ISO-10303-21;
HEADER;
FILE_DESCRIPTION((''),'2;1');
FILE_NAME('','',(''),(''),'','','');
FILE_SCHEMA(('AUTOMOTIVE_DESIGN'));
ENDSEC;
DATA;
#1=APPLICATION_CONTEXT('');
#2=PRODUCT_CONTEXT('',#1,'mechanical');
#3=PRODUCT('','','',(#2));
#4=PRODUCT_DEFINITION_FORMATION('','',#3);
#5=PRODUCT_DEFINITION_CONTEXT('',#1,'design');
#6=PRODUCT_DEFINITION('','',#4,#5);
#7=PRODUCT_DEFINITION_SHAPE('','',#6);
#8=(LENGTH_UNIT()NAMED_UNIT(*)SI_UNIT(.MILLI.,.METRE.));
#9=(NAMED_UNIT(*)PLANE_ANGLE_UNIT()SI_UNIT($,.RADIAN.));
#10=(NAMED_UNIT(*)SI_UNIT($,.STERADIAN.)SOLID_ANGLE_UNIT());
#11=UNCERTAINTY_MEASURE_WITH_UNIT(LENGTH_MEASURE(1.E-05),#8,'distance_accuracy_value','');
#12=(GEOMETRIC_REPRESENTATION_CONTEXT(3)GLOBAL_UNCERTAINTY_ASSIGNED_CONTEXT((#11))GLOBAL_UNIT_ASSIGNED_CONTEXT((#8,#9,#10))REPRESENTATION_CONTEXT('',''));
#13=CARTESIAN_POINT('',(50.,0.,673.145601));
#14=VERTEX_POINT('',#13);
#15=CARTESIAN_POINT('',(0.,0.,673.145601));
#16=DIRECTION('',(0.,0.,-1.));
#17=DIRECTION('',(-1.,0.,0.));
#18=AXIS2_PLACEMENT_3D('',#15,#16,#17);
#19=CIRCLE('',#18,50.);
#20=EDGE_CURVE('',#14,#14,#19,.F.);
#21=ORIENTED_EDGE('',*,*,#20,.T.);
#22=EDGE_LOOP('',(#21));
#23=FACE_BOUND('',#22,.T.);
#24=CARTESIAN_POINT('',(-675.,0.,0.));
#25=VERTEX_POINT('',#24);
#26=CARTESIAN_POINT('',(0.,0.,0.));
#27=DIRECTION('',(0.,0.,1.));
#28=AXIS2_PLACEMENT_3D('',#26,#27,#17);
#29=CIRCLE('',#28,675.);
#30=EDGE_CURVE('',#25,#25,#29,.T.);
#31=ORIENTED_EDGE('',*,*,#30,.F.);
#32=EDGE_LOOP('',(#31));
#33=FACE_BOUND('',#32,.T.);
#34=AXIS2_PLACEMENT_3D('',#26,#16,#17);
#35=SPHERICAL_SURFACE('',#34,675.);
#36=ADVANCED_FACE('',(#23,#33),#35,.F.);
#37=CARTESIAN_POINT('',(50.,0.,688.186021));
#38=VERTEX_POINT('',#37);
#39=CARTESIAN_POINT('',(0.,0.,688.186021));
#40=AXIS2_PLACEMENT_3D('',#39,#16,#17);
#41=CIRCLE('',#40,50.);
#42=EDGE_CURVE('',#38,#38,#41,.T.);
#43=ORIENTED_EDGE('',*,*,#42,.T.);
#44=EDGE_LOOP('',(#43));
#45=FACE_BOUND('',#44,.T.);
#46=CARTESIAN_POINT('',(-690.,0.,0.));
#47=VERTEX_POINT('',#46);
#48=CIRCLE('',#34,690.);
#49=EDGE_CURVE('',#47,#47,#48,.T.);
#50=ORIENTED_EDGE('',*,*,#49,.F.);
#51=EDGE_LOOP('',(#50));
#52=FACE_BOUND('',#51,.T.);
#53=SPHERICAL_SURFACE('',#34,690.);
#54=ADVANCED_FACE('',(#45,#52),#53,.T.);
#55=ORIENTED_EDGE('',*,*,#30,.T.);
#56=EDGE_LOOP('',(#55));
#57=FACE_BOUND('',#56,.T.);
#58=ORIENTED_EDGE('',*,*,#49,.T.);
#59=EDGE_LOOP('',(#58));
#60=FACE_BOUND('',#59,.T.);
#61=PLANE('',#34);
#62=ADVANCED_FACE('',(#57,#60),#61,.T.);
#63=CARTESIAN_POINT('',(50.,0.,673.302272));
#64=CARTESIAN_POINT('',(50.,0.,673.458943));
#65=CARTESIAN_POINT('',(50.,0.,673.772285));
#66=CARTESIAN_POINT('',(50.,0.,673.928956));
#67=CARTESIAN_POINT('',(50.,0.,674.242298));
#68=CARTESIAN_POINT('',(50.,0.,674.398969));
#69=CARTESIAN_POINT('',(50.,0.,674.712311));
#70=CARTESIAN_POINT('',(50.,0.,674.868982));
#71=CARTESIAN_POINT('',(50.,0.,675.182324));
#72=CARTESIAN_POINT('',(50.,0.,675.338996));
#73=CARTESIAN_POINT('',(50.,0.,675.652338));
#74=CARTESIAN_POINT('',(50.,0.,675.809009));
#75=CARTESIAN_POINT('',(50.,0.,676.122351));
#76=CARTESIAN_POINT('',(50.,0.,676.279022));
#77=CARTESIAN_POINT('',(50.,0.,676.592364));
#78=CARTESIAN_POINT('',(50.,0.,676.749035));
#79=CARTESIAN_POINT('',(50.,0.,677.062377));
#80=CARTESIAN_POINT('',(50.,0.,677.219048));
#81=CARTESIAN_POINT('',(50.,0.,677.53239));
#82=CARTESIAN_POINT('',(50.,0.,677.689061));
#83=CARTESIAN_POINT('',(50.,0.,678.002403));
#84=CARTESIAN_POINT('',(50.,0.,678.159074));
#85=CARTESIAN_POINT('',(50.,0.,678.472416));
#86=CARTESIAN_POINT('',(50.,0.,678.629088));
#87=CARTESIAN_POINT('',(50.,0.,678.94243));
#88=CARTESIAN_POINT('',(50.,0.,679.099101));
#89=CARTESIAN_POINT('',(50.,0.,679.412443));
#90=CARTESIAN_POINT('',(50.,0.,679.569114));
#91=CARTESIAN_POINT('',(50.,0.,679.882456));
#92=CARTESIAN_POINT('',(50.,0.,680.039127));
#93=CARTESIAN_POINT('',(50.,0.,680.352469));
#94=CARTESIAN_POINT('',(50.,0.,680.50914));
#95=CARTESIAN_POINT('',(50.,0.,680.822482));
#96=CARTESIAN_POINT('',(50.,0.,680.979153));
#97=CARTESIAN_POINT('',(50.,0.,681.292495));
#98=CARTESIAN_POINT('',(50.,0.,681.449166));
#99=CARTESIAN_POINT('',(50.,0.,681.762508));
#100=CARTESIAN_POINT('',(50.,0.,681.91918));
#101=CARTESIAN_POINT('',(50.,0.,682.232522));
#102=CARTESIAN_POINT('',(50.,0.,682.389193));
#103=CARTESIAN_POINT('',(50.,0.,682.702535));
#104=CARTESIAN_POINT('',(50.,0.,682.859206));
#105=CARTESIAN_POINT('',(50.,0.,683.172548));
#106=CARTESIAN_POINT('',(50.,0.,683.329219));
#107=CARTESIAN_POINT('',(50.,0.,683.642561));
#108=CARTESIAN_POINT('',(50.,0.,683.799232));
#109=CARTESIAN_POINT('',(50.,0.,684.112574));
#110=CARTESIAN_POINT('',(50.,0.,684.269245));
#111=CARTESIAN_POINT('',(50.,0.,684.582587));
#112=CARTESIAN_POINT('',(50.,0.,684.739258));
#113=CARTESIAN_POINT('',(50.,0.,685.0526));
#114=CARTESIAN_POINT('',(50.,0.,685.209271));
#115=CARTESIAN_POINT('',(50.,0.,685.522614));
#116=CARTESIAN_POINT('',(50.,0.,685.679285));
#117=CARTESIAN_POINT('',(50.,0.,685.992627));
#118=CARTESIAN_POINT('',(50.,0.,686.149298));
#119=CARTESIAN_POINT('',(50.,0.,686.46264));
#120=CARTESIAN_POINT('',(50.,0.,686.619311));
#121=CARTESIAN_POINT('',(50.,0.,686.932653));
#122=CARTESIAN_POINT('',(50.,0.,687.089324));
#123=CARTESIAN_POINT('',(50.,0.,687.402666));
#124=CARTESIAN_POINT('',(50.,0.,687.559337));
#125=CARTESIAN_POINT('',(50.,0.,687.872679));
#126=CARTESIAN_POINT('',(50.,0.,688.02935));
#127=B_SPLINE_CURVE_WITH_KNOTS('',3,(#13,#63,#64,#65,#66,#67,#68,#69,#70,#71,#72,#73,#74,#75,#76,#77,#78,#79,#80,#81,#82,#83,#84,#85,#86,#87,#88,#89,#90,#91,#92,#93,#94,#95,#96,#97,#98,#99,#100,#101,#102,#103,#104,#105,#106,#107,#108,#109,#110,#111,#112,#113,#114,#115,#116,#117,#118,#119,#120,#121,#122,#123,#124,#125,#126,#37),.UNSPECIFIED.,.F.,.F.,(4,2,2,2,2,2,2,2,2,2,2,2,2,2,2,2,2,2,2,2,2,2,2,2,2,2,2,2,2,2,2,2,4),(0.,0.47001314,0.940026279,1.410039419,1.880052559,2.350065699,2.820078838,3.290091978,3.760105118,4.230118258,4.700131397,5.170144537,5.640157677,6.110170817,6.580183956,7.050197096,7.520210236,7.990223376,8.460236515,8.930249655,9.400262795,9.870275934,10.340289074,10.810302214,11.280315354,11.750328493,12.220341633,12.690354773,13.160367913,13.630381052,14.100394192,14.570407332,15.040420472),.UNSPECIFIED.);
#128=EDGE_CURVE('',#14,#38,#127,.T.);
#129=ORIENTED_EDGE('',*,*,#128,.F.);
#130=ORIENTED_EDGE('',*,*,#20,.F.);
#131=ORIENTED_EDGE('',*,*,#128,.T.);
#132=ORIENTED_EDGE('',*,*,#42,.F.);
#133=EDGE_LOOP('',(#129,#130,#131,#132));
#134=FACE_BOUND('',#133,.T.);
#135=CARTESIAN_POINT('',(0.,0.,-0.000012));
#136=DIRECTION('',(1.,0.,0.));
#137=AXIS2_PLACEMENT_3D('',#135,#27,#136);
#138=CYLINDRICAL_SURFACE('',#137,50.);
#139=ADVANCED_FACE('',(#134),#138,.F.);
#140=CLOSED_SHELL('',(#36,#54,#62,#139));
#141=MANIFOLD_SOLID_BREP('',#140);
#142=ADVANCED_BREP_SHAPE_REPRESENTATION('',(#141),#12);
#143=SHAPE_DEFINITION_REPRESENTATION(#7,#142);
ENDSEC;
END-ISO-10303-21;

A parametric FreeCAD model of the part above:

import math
import FreeCAD as App
import Part
import Sketcher

doc = App.newDocument("Part")
body = doc.addObject("PartDesign::Body", "Body")

sketch1 = doc.addObject("Sketcher::SketchObject", "Sketch")
body.addObject(sketch1)
sketch1.AttachmentSupport = (doc.XY_Plane, [""])
sketch1.MapMode = "FlatFace"
sketch1.addGeometry([
    Part.LineSegment(App.Vector(0, 690, 0), App.Vector(0, 675, 0)),
    Part.ArcOfCircle(Part.Circle(App.Vector(0, 0, 0), App.Vector(0, 0, 1), 675), math.radians(-90), math.radians(90)),
    Part.LineSegment(App.Vector(0, -675, 0), App.Vector(0, -690, 0)),
    Part.ArcOfCircle(Part.Circle(App.Vector(0, 0, 0), App.Vector(0, 0, 1), 690), math.radians(-90), math.radians(90)),
], False)
sketch1.addConstraint([
    Sketcher.Constraint("Coincident", 0, 2, 1, 2),
    Sketcher.Constraint("Coincident", 1, 1, 2, 1),
    Sketcher.Constraint("Coincident", 2, 2, 3, 1),
    Sketcher.Constraint("Coincident", 3, 2, 0, 1),
    Sketcher.Constraint("Vertical", 0),
    Sketcher.Constraint("Vertical", 2),
    Sketcher.Constraint("Coincident", 1, 3, -1, 1),
    Sketcher.Constraint("Coincident", 3, 3, -1, 1),
    Sketcher.Constraint("PointOnObject", 0, 2, -2),
    Sketcher.Constraint("PointOnObject", 2, 2, -2),
    Sketcher.Constraint("Radius", 1, 675.0),
    Sketcher.Constraint("Radius", 3, 690.0),
])
revolution = doc.addObject("PartDesign::Revolution", "Revolution")
body.addObject(revolution)
revolution.Profile = sketch1
revolution.ReferenceAxis = (sketch1, ["V_Axis"])
revolution.Angle = 180
revolution.Reversed = True

sketch2 = doc.addObject("Sketcher::SketchObject", "Sketch001")
body.addObject(sketch2)
sketch2.AttachmentSupport = (doc.XY_Plane, [""])
sketch2.MapMode = "FlatFace"
sketch2.addGeometry(Part.Circle(App.Vector(0, 0, 0), App.Vector(0, 0, 1), 50), False)
sketch2.addConstraint([
    Sketcher.Constraint("Coincident", 0, 3, -1, 1),
    Sketcher.Constraint("Diameter", 0, 100.0),
])
pocket1 = doc.addObject("PartDesign::Pocket", "Pocket")
body.addObject(pocket1)
pocket1.Profile = sketch2
pocket1.Type = "ThroughAll"
pocket1.Midplane = True

doc.recompute()
